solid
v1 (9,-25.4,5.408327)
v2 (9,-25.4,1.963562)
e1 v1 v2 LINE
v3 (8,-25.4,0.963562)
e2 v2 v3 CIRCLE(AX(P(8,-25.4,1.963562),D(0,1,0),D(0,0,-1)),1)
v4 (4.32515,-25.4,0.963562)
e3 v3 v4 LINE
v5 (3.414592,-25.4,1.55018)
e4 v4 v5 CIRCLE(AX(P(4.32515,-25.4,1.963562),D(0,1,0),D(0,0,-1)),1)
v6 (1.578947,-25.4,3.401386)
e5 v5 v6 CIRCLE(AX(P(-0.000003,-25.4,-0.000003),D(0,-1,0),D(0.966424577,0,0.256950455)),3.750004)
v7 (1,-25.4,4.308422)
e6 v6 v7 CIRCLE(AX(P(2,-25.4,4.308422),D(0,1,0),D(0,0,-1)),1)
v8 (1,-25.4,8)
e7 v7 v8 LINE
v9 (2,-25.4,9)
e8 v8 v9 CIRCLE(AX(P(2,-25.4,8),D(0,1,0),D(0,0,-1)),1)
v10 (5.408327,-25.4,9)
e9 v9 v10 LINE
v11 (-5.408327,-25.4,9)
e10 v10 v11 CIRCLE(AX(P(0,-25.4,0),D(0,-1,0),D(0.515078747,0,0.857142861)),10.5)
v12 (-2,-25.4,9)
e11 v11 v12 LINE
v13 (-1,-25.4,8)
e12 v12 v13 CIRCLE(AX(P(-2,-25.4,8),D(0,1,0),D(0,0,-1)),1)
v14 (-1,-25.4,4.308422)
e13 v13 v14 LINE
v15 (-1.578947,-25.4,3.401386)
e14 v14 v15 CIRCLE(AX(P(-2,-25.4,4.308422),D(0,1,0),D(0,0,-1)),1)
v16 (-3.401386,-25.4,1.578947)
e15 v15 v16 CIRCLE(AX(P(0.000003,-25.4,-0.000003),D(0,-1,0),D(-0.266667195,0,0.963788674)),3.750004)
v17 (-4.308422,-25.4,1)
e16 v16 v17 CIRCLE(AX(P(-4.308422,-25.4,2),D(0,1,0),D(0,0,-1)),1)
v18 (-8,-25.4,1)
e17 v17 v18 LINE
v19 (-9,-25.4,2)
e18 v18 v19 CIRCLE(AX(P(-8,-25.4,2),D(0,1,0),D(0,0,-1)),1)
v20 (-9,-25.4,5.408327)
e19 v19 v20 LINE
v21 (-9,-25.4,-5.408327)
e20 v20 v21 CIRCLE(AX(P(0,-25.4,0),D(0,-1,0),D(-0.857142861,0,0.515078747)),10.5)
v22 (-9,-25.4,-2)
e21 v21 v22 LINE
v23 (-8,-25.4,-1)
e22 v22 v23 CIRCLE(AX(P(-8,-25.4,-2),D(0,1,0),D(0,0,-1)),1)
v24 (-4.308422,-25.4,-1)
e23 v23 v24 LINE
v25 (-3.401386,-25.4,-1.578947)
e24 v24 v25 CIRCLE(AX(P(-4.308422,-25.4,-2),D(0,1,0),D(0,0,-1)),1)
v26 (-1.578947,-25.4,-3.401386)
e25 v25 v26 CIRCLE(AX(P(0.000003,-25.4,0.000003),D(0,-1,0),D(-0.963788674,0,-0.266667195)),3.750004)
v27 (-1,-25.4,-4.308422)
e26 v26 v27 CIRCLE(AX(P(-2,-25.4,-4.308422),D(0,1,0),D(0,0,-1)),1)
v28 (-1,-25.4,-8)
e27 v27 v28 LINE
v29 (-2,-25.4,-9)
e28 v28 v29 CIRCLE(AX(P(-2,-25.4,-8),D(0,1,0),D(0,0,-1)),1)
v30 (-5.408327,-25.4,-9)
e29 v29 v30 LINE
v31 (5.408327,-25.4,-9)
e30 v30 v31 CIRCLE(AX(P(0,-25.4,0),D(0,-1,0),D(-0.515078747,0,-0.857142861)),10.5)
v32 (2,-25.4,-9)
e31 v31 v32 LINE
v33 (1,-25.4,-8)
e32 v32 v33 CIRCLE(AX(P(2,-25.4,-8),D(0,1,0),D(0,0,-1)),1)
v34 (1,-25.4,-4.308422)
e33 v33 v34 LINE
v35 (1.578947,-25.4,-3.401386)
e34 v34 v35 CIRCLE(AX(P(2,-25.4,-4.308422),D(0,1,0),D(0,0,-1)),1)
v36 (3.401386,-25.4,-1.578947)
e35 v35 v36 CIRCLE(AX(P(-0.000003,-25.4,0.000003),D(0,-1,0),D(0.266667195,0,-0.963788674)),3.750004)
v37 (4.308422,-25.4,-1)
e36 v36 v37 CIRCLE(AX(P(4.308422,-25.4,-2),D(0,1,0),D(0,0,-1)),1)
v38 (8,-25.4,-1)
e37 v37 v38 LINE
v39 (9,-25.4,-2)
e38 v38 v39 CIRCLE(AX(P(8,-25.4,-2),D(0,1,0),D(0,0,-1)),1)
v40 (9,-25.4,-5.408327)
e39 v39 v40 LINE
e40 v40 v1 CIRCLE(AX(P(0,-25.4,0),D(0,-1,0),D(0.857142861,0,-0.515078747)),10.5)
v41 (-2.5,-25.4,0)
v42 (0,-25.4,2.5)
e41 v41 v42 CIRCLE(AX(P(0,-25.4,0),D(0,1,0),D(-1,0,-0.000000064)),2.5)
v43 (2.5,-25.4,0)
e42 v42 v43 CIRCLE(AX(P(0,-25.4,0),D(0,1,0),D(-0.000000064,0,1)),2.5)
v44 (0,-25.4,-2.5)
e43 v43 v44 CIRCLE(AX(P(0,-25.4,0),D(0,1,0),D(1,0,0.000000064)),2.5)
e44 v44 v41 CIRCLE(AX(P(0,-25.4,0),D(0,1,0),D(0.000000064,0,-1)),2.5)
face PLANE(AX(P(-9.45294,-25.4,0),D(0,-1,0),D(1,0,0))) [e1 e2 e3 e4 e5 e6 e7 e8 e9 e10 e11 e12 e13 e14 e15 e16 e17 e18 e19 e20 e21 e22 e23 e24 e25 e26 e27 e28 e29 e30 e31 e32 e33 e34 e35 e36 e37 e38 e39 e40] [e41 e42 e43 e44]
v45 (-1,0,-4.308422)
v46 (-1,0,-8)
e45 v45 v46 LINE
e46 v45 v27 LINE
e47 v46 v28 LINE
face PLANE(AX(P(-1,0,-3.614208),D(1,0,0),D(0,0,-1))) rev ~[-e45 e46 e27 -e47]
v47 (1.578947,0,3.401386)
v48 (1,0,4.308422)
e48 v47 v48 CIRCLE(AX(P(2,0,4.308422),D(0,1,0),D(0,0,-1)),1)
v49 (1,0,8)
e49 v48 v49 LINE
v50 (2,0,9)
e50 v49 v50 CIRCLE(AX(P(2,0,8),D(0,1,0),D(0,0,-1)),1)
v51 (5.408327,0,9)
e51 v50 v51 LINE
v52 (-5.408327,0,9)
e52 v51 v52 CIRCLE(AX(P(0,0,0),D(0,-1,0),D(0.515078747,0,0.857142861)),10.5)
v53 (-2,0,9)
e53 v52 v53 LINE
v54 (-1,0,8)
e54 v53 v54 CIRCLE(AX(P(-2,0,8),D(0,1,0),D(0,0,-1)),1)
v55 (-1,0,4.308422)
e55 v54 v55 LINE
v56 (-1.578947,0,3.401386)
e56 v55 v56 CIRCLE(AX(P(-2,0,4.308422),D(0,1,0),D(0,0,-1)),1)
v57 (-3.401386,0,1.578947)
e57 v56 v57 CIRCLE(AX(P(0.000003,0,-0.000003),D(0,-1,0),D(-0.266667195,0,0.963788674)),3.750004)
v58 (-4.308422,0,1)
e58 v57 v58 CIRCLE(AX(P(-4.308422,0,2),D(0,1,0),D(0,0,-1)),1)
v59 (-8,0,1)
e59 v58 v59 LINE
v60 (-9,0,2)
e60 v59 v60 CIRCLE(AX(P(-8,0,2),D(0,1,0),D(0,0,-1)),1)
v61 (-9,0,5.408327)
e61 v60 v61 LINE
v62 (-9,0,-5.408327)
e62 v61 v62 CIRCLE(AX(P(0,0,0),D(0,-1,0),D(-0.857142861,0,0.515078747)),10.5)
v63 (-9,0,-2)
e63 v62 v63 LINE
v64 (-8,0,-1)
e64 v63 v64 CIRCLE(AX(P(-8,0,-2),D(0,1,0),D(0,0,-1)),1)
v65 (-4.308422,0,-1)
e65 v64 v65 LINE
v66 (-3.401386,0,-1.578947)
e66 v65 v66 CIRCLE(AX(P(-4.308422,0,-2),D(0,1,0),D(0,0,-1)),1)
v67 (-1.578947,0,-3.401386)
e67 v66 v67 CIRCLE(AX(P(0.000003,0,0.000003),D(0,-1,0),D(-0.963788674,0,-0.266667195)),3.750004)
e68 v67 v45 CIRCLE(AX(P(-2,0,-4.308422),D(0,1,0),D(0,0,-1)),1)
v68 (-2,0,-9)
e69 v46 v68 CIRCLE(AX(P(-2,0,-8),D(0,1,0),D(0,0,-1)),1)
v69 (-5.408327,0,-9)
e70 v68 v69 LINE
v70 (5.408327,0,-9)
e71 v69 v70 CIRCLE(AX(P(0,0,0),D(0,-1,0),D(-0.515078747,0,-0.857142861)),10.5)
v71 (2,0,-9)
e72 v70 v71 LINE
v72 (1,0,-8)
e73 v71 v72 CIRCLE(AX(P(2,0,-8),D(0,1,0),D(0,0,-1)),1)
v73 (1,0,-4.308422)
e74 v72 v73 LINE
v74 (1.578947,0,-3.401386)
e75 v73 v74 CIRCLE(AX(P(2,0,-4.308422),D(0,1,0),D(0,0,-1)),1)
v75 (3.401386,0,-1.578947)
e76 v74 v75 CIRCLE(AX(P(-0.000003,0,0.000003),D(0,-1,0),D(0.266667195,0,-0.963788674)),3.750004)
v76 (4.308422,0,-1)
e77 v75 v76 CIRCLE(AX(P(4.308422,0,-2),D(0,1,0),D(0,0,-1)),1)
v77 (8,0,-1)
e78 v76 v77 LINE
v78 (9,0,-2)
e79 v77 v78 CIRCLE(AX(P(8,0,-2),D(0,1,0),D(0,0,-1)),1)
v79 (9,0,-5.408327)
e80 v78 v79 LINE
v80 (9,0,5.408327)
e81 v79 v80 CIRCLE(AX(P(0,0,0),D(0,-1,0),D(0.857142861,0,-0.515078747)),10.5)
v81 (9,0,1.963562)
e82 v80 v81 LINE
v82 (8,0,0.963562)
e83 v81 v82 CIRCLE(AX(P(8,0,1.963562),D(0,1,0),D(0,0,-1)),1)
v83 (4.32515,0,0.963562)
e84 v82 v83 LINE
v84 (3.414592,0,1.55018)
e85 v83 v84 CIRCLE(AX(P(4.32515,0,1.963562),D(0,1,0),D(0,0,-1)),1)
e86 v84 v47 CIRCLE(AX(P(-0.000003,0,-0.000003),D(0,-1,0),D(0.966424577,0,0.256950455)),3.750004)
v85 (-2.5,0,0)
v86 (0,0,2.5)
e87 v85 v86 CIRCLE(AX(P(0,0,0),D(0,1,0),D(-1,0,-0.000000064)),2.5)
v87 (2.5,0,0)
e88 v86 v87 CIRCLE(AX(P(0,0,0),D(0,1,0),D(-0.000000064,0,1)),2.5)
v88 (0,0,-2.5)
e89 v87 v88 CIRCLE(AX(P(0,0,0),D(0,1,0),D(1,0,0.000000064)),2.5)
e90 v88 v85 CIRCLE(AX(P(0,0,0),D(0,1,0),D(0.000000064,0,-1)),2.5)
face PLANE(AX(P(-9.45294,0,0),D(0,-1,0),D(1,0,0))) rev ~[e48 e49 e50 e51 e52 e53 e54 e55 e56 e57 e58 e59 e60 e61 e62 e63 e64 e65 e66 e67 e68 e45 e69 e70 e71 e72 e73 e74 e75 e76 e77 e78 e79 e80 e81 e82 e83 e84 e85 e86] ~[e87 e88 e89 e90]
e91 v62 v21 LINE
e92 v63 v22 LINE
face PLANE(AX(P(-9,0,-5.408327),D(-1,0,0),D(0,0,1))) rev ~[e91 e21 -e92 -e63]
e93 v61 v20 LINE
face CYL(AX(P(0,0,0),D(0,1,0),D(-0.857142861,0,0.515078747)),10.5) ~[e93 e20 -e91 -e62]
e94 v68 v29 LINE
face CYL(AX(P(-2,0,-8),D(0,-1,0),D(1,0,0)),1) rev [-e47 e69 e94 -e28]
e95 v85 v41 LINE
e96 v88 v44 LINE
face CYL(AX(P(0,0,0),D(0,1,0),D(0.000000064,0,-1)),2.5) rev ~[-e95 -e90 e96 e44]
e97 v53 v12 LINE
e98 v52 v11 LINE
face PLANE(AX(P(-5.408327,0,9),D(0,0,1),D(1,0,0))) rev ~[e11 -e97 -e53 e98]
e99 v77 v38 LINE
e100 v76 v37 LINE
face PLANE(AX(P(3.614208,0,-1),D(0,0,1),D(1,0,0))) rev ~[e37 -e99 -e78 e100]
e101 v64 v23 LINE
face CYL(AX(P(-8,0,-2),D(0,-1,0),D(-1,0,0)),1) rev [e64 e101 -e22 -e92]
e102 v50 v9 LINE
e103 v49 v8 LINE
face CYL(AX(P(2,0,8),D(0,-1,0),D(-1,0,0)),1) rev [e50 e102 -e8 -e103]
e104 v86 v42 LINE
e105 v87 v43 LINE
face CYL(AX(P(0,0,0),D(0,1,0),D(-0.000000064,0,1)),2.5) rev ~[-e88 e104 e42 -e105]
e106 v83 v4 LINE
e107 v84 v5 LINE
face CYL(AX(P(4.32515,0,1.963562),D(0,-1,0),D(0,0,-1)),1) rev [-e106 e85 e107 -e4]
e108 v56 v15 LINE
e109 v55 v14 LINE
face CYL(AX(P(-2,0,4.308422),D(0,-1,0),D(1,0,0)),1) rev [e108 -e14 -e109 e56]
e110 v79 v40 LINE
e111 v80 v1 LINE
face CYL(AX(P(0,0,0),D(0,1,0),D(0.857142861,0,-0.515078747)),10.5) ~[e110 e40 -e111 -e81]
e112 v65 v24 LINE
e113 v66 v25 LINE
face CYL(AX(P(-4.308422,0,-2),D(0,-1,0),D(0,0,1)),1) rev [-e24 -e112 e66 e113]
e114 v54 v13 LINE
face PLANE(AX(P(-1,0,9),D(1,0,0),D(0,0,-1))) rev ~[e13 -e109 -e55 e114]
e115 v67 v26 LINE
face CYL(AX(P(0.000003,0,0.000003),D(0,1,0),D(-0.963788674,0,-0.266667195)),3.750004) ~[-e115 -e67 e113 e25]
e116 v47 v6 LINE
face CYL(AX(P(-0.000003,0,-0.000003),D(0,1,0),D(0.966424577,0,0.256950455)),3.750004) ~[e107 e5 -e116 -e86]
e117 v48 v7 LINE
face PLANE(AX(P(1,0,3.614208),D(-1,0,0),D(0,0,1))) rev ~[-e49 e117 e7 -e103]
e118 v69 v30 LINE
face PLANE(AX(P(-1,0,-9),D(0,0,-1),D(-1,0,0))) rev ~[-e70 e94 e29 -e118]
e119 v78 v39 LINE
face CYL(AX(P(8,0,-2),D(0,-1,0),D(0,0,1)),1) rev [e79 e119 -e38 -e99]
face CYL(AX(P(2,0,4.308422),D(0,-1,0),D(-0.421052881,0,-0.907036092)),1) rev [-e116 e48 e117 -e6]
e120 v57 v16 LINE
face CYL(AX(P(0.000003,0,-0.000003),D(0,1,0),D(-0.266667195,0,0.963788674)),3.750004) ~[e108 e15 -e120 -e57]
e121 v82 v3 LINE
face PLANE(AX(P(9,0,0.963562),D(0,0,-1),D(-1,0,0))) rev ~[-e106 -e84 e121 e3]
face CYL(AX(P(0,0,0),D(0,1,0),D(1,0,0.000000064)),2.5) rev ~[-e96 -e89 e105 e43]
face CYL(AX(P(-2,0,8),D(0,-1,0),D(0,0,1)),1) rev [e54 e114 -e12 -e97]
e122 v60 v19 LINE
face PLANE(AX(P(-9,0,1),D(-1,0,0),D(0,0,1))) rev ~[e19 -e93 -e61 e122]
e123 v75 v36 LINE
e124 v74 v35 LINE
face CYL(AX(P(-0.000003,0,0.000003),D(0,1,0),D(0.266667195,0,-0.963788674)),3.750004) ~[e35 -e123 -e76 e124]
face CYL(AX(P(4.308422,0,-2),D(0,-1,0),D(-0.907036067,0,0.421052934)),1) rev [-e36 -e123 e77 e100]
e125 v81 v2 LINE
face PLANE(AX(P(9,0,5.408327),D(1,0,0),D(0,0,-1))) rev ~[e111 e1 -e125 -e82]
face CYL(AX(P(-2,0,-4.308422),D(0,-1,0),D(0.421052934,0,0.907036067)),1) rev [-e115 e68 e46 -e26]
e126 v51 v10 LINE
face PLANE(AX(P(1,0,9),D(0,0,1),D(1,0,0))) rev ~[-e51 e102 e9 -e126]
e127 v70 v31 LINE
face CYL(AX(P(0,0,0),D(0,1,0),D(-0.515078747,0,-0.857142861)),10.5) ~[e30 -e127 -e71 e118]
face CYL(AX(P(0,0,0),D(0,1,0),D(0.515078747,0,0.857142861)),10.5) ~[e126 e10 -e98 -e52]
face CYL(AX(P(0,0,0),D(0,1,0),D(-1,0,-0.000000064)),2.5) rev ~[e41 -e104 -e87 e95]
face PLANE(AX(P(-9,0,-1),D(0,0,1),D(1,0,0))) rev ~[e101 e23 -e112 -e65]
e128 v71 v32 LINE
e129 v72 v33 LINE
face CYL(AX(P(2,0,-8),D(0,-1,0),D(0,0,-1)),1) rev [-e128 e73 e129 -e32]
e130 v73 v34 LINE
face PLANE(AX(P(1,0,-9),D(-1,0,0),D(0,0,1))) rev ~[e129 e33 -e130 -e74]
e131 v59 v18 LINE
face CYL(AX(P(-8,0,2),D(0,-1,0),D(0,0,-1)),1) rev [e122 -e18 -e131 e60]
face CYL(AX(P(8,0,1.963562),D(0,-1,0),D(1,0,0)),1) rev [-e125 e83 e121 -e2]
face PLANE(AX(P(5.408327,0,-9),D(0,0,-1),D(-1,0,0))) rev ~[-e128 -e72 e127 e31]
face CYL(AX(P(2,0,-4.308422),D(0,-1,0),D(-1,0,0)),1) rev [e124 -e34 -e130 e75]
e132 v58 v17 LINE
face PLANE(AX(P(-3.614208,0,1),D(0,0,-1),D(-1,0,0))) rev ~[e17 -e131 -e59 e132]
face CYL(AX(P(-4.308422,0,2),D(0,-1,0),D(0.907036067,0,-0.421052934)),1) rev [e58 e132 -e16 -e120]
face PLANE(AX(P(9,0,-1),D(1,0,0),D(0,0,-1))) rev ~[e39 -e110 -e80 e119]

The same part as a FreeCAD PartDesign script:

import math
import FreeCAD as App
import Part
import Sketcher

V = App.Vector


def edges_at(feature, points):
    """Names of the edges that pass closest to the given points."""
    edges = feature.Shape.Edges
    near = lambda p: min(range(len(edges)), key=lambda i: edges[i].distToShape(Part.Vertex(*p))[0])
    return sorted({f"Edge{near(p) + 1}" for p in points})

doc = App.newDocument("Part")
params = doc.addObject("Spreadsheet::Sheet", "Params")
for row, (alias, value) in enumerate([
    ("sketch1_radius", "10.5 mm"),
    ("sketch1_radius2", "2.5 mm"),
    ("pad1_length", "25.4 mm"),
    ("fillet_radius", "1 mm"),
], start=1):
    params.set(f"A{row}", alias)
    params.set(f"B{row}", "=" + value)
    params.setAlias(f"B{row}", alias)

body = doc.addObject("PartDesign::Body", "Body")

# Sketch on XZ plane
sketch1 = body.newObject("Sketcher::SketchObject", "Sketch")
sketch1.AttachmentSupport = (doc.getObject("XZ_Plane"), [""])
sketch1.MapMode = "FlatFace"
sketch1.addGeometry([
    Part.ArcOfCircle(Part.Circle(V(0, 0, 0), V(0, 0, 1), 10.5), math.radians(149), math.radians(211)),  # 0
    Part.LineSegment(V(-9, -5.4, 0), V(-9, -1, 0)),  # 1
    Part.LineSegment(V(-9, -1, 0), V(-3.6, -1, 0)),  # 2
    Part.ArcOfCircle(Part.Circle(V(0, 0, 0), V(0, 0, 1), 3.8), math.radians(-165), math.radians(-105)),  # 3
    Part.LineSegment(V(-1, -3.6, 0), V(-1, -9, 0)),  # 4
    Part.LineSegment(V(-1, -9, 0), V(-5.4, -9, 0)),  # 5
    Part.ArcOfCircle(Part.Circle(V(0, 0, 0), V(0, 0, 1), 10.5), math.radians(-121), math.radians(-59)),  # 6
    Part.LineSegment(V(5.4, -9, 0), V(1, -9, 0)),  # 7
    Part.LineSegment(V(1, -9, 0), V(1, -3.6, 0)),  # 8
    Part.ArcOfCircle(Part.Circle(V(0, 0, 0), V(0, 0, 1), 3.8), math.radians(-75), math.radians(-15)),  # 9
    Part.LineSegment(V(3.6, -1, 0), V(9, -1, 0)),  # 10
    Part.LineSegment(V(9, -1, 0), V(9, -5.4, 0)),  # 11
    Part.ArcOfCircle(Part.Circle(V(0, 0, 0), V(0, 0, 1), 10.5), math.radians(-31), math.radians(31)),  # 12
    Part.LineSegment(V(9, 5.4, 0), V(9, 1, 0)),  # 13
    Part.LineSegment(V(9, 1, 0), V(3.6, 1, 0)),  # 14
    Part.ArcOfCircle(Part.Circle(V(0, 0, 0), V(0, 0, 1), 3.8), math.radians(15), math.radians(75)),  # 15
    Part.LineSegment(V(1, 3.6, 0), V(1, 9, 0)),  # 16
    Part.LineSegment(V(1, 9, 0), V(5.4, 9, 0)),  # 17
    Part.ArcOfCircle(Part.Circle(V(0, 0, 0), V(0, 0, 1), 10.5), math.radians(59), math.radians(121)),  # 18
    Part.LineSegment(V(-5.4, 9, 0), V(-1, 9, 0)),  # 19
    Part.LineSegment(V(-1, 9, 0), V(-1, 3.6, 0)),  # 20
    Part.ArcOfCircle(Part.Circle(V(0, 0, 0), V(0, 0, 1), 3.8), math.radians(105), math.radians(165)),  # 21
    Part.LineSegment(V(-3.6, 1, 0), V(-9, 1, 0)),  # 22
    Part.LineSegment(V(-9, 1, 0), V(-9, 5.4, 0)),  # 23
    Part.ArcOfCircle(Part.Circle(V(0, 0, 0), V(0, 0, 1), 2.5), math.radians(90), math.radians(180)),  # 24
    Part.ArcOfCircle(Part.Circle(V(0, 0, 0), V(0, 0, 1), 2.5), math.radians(0), math.radians(90)),  # 25
    Part.ArcOfCircle(Part.Circle(V(0, 0, 0), V(0, 0, 1), 2.5), math.radians(-90), math.radians(0)),  # 26
    Part.ArcOfCircle(Part.Circle(V(0, 0, 0), V(0, 0, 1), 2.5), math.radians(180), math.radians(270)),  # 27
], False)
sketch1.addConstraint([
    Sketcher.Constraint("Coincident", 0, 2, 1, 1),
    Sketcher.Constraint("Coincident", 1, 2, 2, 1),
    Sketcher.Constraint("Coincident", 2, 2, 3, 1),
    Sketcher.Constraint("Coincident", 3, 2, 4, 1),
    Sketcher.Constraint("Coincident", 4, 2, 5, 1),
    Sketcher.Constraint("Coincident", 5, 2, 6, 1),
    Sketcher.Constraint("Coincident", 6, 2, 7, 1),
    Sketcher.Constraint("Coincident", 7, 2, 8, 1),
    Sketcher.Constraint("Coincident", 8, 2, 9, 1),
    Sketcher.Constraint("Coincident", 9, 2, 10, 1),
    Sketcher.Constraint("Coincident", 10, 2, 11, 1),
    Sketcher.Constraint("Coincident", 11, 2, 12, 1),
    Sketcher.Constraint("Coincident", 12, 2, 13, 1),
    Sketcher.Constraint("Coincident", 13, 2, 14, 1),
    Sketcher.Constraint("Coincident", 14, 2, 15, 1),
    Sketcher.Constraint("Coincident", 15, 2, 16, 1),
    Sketcher.Constraint("Coincident", 16, 2, 17, 1),
    Sketcher.Constraint("Coincident", 17, 2, 18, 1),
    Sketcher.Constraint("Coincident", 18, 2, 19, 1),
    Sketcher.Constraint("Coincident", 19, 2, 20, 1),
    Sketcher.Constraint("Coincident", 20, 2, 21, 1),
    Sketcher.Constraint("Coincident", 21, 2, 22, 1),
    Sketcher.Constraint("Coincident", 22, 2, 23, 1),
    Sketcher.Constraint("Coincident", 23, 2, 0, 1),
    Sketcher.Constraint("Tangent", 24, 1, 25, 2),
    Sketcher.Constraint("Tangent", 25, 1, 26, 2),
    Sketcher.Constraint("Tangent", 26, 1, 27, 2),
    Sketcher.Constraint("Tangent", 27, 1, 24, 2),
    Sketcher.Constraint("Vertical", 1),
    Sketcher.Constraint("Horizontal", 2),
    Sketcher.Constraint("Vertical", 4),
    Sketcher.Constraint("Horizontal", 5),
    Sketcher.Constraint("Horizontal", 7),
    Sketcher.Constraint("Vertical", 8),
    Sketcher.Constraint("Horizontal", 10),
    Sketcher.Constraint("Vertical", 11),
    Sketcher.Constraint("Vertical", 13),
    Sketcher.Constraint("Horizontal", 14),
    Sketcher.Constraint("Vertical", 16),
    Sketcher.Constraint("Horizontal", 17),
    Sketcher.Constraint("Horizontal", 19),
    Sketcher.Constraint("Vertical", 20),
    Sketcher.Constraint("Horizontal", 22),
    Sketcher.Constraint("Vertical", 23),
    Sketcher.Constraint("Coincident", 0, 3, -1, 1),
    Sketcher.Constraint("Coincident", 3, 3, -1, 1),
    Sketcher.Constraint("Coincident", 6, 3, -1, 1),
    Sketcher.Constraint("Coincident", 9, 3, -1, 1),
    Sketcher.Constraint("Coincident", 12, 3, -1, 1),
    Sketcher.Constraint("Coincident", 15, 3, -1, 1),
    Sketcher.Constraint("Coincident", 18, 3, -1, 1),
    Sketcher.Constraint("Coincident", 21, 3, -1, 1),
    Sketcher.Constraint("Coincident", 24, 3, -1, 1),
    Sketcher.Constraint("Equal", 0, 6),
    Sketcher.Constraint("Equal", 3, 9),
    Sketcher.Constraint("Equal", 6, 12),
    Sketcher.Constraint("Equal", 9, 15),
    Sketcher.Constraint("Equal", 12, 18),
    Sketcher.Constraint("Equal", 15, 21),
    Sketcher.Constraint("Equal", 24, 25),
    Sketcher.Constraint("Symmetric", 4, 2, 16, 2, -1, 1),
    Sketcher.Constraint("Symmetric", 7, 2, 19, 2, -1, 1),
    Sketcher.Constraint("Symmetric", 10, 2, 22, 2, -1, 1),
    Sketcher.Constraint("Symmetric", 4, 2, 7, 2, -2),
    Sketcher.Constraint("Symmetric", 1, 2, 10, 2, -2),
    Sketcher.Constraint("PointOnObject", 24, 1, -2),
    Sketcher.Constraint("PointOnObject", 25, 1, -1),
    Sketcher.Constraint("PointOnObject", 26, 1, -2),
    Sketcher.Constraint("PointOnObject", 27, 1, -1),
    Sketcher.Constraint("Horizontal", 12, 2, 23, 2),
    Sketcher.Constraint("Equal", 19, 1),
    Sketcher.Constraint("Equal", 22, 4),
    Sketcher.Constraint("Radius", 0, 10.5),
    Sketcher.Constraint("Radius", 24, 2.5),
    Sketcher.Constraint("DistanceX", 0, 2, -1, 1, 9.0),
    Sketcher.Constraint("DistanceY", 1, 2, -1, 1, 1.0),
    Sketcher.Constraint("Radius", 3, 3.750004),
    Sketcher.Constraint("DistanceX", 14, 2, 14, 1, 5.375907),
])
sketch1.setExpression("Constraints[72]", "Params.sketch1_radius")
sketch1.setExpression("Constraints[73]", "Params.sketch1_radius2")
pad1 = body.newObject("PartDesign::Pad", "Pad")
pad1.Profile = sketch1
pad1.setExpression("Length", "Params.pad1_length")
doc.recompute()

fillet = body.newObject("PartDesign::Fillet", "Fillet")
fillet.Base = (pad1, edges_at(pad1, [
    (-3.614, -12.7, -1),
    (-9, -12.7, -1),
    (-9, -12.7, 1),
    (3.624, -12.7, 0.964),
    (1, -12.7, 3.614),
    (1, -12.7, -3.614),
    (3.614, -12.7, -1),
    (1, -12.7, -9),
    (-1, -12.7, -9),
    (-1, -12.7, 9),
    (1, -12.7, 9),
    (9, -12.7, -1),
    (9, -12.7, 0.964),
    (-1, -12.7, 3.614),
    (-3.614, -12.7, 1),
    (-1, -12.7, -3.614),
]))
fillet.setExpression("Radius", "Params.fillet_radius")

doc.recompute()
